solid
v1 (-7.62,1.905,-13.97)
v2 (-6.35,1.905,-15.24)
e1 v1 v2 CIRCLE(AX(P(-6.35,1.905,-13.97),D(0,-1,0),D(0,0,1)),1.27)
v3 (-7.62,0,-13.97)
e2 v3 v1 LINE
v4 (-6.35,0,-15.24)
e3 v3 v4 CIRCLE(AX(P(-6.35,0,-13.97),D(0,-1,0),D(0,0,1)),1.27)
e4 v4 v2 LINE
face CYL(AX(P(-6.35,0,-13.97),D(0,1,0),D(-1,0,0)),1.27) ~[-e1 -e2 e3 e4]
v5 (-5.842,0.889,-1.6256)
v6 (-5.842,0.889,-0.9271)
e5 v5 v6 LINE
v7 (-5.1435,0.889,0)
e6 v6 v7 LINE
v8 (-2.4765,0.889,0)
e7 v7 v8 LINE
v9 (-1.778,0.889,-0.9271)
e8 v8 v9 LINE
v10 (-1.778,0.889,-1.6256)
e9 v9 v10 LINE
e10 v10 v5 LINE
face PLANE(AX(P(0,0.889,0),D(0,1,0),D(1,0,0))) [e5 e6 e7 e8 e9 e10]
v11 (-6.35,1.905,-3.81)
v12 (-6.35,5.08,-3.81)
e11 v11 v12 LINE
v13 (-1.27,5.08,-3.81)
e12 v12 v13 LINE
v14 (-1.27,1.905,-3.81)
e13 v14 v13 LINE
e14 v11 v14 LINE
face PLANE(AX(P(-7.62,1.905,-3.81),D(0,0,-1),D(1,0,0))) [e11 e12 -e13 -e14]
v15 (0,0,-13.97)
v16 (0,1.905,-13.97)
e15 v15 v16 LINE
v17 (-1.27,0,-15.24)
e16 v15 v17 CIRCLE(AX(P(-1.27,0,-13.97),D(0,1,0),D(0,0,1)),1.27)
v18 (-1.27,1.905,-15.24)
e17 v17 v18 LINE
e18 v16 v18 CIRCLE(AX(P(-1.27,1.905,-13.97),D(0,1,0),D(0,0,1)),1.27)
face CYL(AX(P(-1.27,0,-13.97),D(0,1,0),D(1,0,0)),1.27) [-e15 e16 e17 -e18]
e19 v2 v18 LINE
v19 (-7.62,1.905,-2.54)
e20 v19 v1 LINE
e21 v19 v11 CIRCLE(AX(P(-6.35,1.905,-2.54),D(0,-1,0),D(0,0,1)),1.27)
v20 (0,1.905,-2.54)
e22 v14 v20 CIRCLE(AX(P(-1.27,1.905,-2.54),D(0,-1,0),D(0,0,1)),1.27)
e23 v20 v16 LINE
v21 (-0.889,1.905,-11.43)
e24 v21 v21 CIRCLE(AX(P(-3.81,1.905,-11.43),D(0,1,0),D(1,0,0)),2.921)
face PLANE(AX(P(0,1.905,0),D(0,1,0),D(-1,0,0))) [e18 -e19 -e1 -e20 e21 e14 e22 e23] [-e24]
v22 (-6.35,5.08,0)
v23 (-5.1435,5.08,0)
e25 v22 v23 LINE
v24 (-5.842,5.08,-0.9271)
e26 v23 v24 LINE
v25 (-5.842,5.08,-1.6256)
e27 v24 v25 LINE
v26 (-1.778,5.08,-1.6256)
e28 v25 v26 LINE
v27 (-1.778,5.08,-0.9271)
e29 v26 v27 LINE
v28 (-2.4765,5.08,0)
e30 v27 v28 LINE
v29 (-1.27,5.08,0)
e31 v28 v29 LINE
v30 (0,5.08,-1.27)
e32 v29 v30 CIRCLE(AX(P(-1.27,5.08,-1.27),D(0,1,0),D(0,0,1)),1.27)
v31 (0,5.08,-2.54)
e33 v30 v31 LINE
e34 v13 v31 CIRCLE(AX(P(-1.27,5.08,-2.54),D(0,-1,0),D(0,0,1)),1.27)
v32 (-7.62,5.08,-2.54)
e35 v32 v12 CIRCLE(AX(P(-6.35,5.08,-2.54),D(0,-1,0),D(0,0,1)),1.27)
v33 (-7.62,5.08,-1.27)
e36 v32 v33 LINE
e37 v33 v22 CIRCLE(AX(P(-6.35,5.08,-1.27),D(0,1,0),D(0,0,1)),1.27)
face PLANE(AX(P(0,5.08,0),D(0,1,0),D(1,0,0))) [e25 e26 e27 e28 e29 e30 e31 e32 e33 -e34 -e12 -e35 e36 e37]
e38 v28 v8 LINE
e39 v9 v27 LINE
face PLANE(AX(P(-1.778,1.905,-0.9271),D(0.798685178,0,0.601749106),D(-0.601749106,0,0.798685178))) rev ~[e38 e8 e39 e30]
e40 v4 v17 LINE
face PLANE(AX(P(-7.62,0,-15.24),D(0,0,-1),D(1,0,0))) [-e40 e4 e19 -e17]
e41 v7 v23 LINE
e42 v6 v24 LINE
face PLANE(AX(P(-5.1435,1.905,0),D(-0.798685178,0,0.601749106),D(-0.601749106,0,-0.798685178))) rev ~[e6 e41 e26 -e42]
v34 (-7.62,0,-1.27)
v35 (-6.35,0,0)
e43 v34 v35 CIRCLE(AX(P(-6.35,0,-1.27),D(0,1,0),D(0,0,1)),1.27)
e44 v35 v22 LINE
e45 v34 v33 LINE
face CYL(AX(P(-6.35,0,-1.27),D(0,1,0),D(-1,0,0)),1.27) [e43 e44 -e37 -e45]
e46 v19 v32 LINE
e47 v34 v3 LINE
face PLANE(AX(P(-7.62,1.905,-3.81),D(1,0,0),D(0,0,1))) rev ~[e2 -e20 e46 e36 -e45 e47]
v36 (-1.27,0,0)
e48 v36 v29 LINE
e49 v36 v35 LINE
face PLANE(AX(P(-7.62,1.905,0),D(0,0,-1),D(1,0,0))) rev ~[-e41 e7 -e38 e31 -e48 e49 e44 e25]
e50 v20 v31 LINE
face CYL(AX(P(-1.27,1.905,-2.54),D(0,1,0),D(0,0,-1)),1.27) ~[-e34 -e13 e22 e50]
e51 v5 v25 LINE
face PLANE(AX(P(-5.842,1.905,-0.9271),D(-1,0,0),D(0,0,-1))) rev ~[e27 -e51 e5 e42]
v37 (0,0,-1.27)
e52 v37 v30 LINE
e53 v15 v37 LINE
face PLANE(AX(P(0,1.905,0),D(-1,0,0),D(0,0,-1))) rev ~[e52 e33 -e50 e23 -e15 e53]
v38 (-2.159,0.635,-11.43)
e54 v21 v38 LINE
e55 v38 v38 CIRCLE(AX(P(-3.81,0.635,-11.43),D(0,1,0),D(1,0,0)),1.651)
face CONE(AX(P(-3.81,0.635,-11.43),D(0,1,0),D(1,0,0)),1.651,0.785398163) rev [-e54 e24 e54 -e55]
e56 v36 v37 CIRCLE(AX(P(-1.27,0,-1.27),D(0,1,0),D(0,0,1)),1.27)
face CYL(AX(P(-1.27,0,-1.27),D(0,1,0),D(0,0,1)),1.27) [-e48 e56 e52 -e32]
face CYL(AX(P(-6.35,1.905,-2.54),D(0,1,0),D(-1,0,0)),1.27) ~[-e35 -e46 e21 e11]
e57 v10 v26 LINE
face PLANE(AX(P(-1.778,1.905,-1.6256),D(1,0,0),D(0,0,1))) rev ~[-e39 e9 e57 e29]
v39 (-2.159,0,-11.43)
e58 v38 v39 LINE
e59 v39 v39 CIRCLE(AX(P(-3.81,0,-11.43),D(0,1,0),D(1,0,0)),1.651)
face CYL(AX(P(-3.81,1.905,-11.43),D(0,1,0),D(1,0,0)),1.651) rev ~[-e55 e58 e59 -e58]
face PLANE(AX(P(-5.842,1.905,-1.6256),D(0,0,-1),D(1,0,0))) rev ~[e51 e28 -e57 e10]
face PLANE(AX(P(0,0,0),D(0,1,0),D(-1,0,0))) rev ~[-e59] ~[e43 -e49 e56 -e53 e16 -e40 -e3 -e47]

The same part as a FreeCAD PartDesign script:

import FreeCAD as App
import Part
import Sketcher
Q = App.Units.Quantity


def edges_at(feature, points):
    """Names of the edges that pass closest to the given points."""
    edges = feature.Shape.Edges
    near = lambda p: min(range(len(edges)), key=lambda i: edges[i].distToShape(Part.Vertex(*p))[0])
    return sorted({f"Edge{near(p) + 1}" for p in points})

doc = App.newDocument("Part")
body = doc.addObject("PartDesign::Body", "Body")

# Sketch on XZ plane
sketch1 = body.newObject("Sketcher::SketchObject", "Sketch")
sketch1.AttachmentSupport = (doc.getObject("XZ_Plane"), [""])
sketch1.MapMode = "FlatFace"
sketch1.addGeometry([
    Part.LineSegment(App.Vector(-7.62, 0, 0), App.Vector(0, 0, 0)),
    Part.LineSegment(App.Vector(0, 0, 0), App.Vector(0, -15.24, 0)),
    Part.LineSegment(App.Vector(0, -15.24, 0), App.Vector(-7.62, -15.24, 0)),
    Part.LineSegment(App.Vector(-7.62, -15.24, 0), App.Vector(-7.62, 0, 0)),
], False)
sketch1.addConstraint([
    Sketcher.Constraint("Coincident", 0, 2, 1, 1),
    Sketcher.Constraint("Coincident", 1, 2, 2, 1),
    Sketcher.Constraint("Coincident", 2, 2, 3, 1),
    Sketcher.Constraint("Coincident", 3, 2, 0, 1),
    Sketcher.Constraint("Horizontal", 0),
    Sketcher.Constraint("Vertical", 1),
    Sketcher.Constraint("Horizontal", 2),
    Sketcher.Constraint("Vertical", 3),
    Sketcher.Constraint("Coincident", 0, 2, -1, 1),
    Sketcher.Constraint("DistanceX", 0, 1, 0, 2, Q("0.3 in")),
    Sketcher.Constraint("DistanceY", 1, 2, 1, 1, Q("0.6 in")),
])
pad1 = body.newObject("PartDesign::Pad", "Pad")
pad1.Profile = sketch1
pad1.Length = Q("0.075 in")
pad1.Reversed = True

# Sketch on XZ plane
sketch2 = body.newObject("Sketcher::SketchObject", "Sketch001")
sketch2.AttachmentSupport = (doc.getObject("XZ_Plane"), [""])
sketch2.MapMode = "FlatFace"
sketch2.AttachmentOffset = App.Placement(App.Vector(0, 0, -0.075 * 25.4), App.Rotation())
sketch2.addGeometry(Part.Circle(App.Vector(-3.81, -11.43, 0), App.Vector(0, 0, 1), 1.651), False)
sketch2.addConstraint([
    Sketcher.Constraint("Diameter", 0, Q("0.13 in")),
    Sketcher.Constraint("DistanceX", 0, 3, -1, 1, Q("0.15 in")),
    Sketcher.Constraint("DistanceY", 0, 3, -1, 1, Q("0.45 in")),
])
pocket1 = body.newObject("PartDesign::Pocket", "Pocket")
pocket1.Profile = sketch2
pocket1.Type = "ThroughAll"
pocket1.Reversed = True
doc.recompute()

chamfer = body.newObject("PartDesign::Chamfer", "Chamfer")
chamfer.Base = (pocket1, edges_at(pocket1, [(-5.461, 1.905, -11.43)]))
chamfer.Size = Q("0.05 in")

# Sketch on XZ plane
sketch3 = body.newObject("Sketcher::SketchObject", "Sketch002")
sketch3.AttachmentSupport = (doc.getObject("XZ_Plane"), [""])
sketch3.MapMode = "FlatFace"
sketch3.AttachmentOffset = App.Placement(App.Vector(0, 0, -0.075 * 25.4), App.Rotation())
sketch3.addGeometry([
    Part.LineSegment(App.Vector(-7.62, -3.81, 0), App.Vector(-7.62, 0, 0)),  # 0
    Part.LineSegment(App.Vector(-7.62, 0, 0), App.Vector(-5.1435, 0, 0)),  # 1
    Part.LineSegment(App.Vector(-5.1435, 0, 0), App.Vector(-5.842, -0.9271, 0)),  # 2
    Part.LineSegment(App.Vector(-5.842, -0.9271, 0), App.Vector(-5.842, -1.6256, 0)),  # 3
    Part.LineSegment(App.Vector(-5.842, -1.6256, 0), App.Vector(-1.778, -1.6256, 0)),  # 4
    Part.LineSegment(App.Vector(-1.778, -1.6256, 0), App.Vector(-1.778, -0.9271, 0)),  # 5
    Part.LineSegment(App.Vector(-1.778, -0.9271, 0), App.Vector(-2.4765, 0, 0)),  # 6
    Part.LineSegment(App.Vector(-2.4765, 0, 0), App.Vector(0, 0, 0)),  # 7
    Part.LineSegment(App.Vector(0, 0, 0), App.Vector(0, -3.81, 0)),  # 8
    Part.LineSegment(App.Vector(0, -3.81, 0), App.Vector(-7.62, -3.81, 0)),  # 9
], False)
sketch3.addConstraint([
    Sketcher.Constraint("Coincident", 0, 2, 1, 1),
    Sketcher.Constraint("Coincident", 1, 2, 2, 1),
    Sketcher.Constraint("Coincident", 2, 2, 3, 1),
    Sketcher.Constraint("Coincident", 3, 2, 4, 1),
    Sketcher.Constraint("Coincident", 4, 2, 5, 1),
    Sketcher.Constraint("Coincident", 5, 2, 6, 1),
    Sketcher.Constraint("Coincident", 6, 2, 7, 1),
    Sketcher.Constraint("Coincident", 7, 2, 8, 1),
    Sketcher.Constraint("Coincident", 8, 2, 9, 1),
    Sketcher.Constraint("Coincident", 9, 2, 0, 1),
    Sketcher.Constraint("Vertical", 0),
    Sketcher.Constraint("Horizontal", 1),
    Sketcher.Constraint("Vertical", 3),
    Sketcher.Constraint("Horizontal", 4),
    Sketcher.Constraint("Vertical", 5),
    Sketcher.Constraint("Horizontal", 7),
    Sketcher.Constraint("Vertical", 8),
    Sketcher.Constraint("Horizontal", 9),
    Sketcher.Constraint("Coincident", 7, 2, -1, 1),
    Sketcher.Constraint("PointOnObject", 0, 2, -1),
    Sketcher.Constraint("Horizontal", 2, 2, 5, 2),
    Sketcher.Constraint("Equal", 1, 7),
    Sketcher.Constraint("Equal", 2, 6),
    Sketcher.Constraint("DistanceX", 4, 1, 4, 2, Q("0.16 in")),
    Sketcher.Constraint("DistanceY", 0, 1, 0, 2, Q("0.15 in")),
    Sketcher.Constraint("DistanceX", 9, 2, 9, 1, Q("0.3 in")),
    Sketcher.Constraint("DistanceY", 3, 2, -1, 1, Q("0.064 in")),
    Sketcher.Constraint("DistanceX", 1, 2, 6, 2, Q("0.105 in")),
    Sketcher.Constraint("DistanceY", 2, 2, -1, 1, Q("0.0365 in")),
])
pad2 = body.newObject("PartDesign::Pad", "Pad001")
pad2.Profile = sketch3
pad2.Length = Q("0.125 in")
pad2.Reversed = True
doc.recompute()

fillet = body.newObject("PartDesign::Fillet", "Fillet")
fillet.Base = (pad2, edges_at(pad2, [
    (-7.62, 2.54, 0),
    (0, 2.54, 0),
    (0, 3.493, -3.81),
    (-7.62, 3.493, -3.81),
    (-7.62, 0.953, -15.24),
    (0, 0.953, -15.24),
]))
fillet.Radius = Q("0.05 in")

# Sketch on XZ plane
sketch4 = body.newObject("Sketcher::SketchObject", "Sketch003")
sketch4.AttachmentSupport = (doc.getObject("XZ_Plane"), [""])
sketch4.MapMode = "FlatFace"
sketch4.AttachmentOffset = App.Placement(App.Vector(0, 0, -0.075 * 25.4), App.Rotation())
sketch4.addGeometry([
    Part.LineSegment(App.Vector(-5.1435, 0, 0), App.Vector(-2.4765, 0, 0)),  # 0
    Part.LineSegment(App.Vector(-2.4765, 0, 0), App.Vector(-1.778, -0.9271, 0)),  # 1
    Part.LineSegment(App.Vector(-1.778, -0.9271, 0), App.Vector(-1.778, -1.6256, 0)),  # 2
    Part.LineSegment(App.Vector(-1.778, -1.6256, 0), App.Vector(-5.842, -1.6256, 0)),  # 3
    Part.LineSegment(App.Vector(-5.842, -1.6256, 0), App.Vector(-5.842, -0.9271, 0)),  # 4
    Part.LineSegment(App.Vector(-5.842, -0.9271, 0), App.Vector(-5.1435, 0, 0)),  # 5
], False)
sketch4.addConstraint([
    Sketcher.Constraint("Coincident", 0, 2, 1, 1),
    Sketcher.Constraint("Coincident", 1, 2, 2, 1),
    Sketcher.Constraint("Coincident", 2, 2, 3, 1),
    Sketcher.Constraint("Coincident", 3, 2, 4, 1),
    Sketcher.Constraint("Coincident", 4, 2, 5, 1),
    Sketcher.Constraint("Coincident", 5, 2, 0, 1),
    Sketcher.Constraint("Horizontal", 0),
    Sketcher.Constraint("Vertical", 2),
    Sketcher.Constraint("Horizontal", 3),
    Sketcher.Constraint("Vertical", 4),
    Sketcher.Constraint("PointOnObject", 0, 2, -1),
    Sketcher.Constraint("Horizontal", 1, 2, 4, 2),
    Sketcher.Constraint("Equal", 1, 5),
    Sketcher.Constraint("DistanceX", 3, 2, 3, 1, Q("0.16 in")),
    Sketcher.Constraint("DistanceX", 0, 1, 0, 2, Q("0.105 in")),
    Sketcher.Constraint("DistanceX", 1, 2, -1, 1, Q("0.07 in")),
    Sketcher.Constraint("DistanceY", 2, 2, 2, 1, Q("0.0275 in")),
    Sketcher.Constraint("DistanceY", 2, 2, -1, 1, Q("0.064 in")),
])
pocket2 = body.newObject("PartDesign::Pocket", "Pocket001")
pocket2.Profile = sketch4
pocket2.Length = Q("0.04 in")
pocket2.Reversed = True

doc.recompute()
